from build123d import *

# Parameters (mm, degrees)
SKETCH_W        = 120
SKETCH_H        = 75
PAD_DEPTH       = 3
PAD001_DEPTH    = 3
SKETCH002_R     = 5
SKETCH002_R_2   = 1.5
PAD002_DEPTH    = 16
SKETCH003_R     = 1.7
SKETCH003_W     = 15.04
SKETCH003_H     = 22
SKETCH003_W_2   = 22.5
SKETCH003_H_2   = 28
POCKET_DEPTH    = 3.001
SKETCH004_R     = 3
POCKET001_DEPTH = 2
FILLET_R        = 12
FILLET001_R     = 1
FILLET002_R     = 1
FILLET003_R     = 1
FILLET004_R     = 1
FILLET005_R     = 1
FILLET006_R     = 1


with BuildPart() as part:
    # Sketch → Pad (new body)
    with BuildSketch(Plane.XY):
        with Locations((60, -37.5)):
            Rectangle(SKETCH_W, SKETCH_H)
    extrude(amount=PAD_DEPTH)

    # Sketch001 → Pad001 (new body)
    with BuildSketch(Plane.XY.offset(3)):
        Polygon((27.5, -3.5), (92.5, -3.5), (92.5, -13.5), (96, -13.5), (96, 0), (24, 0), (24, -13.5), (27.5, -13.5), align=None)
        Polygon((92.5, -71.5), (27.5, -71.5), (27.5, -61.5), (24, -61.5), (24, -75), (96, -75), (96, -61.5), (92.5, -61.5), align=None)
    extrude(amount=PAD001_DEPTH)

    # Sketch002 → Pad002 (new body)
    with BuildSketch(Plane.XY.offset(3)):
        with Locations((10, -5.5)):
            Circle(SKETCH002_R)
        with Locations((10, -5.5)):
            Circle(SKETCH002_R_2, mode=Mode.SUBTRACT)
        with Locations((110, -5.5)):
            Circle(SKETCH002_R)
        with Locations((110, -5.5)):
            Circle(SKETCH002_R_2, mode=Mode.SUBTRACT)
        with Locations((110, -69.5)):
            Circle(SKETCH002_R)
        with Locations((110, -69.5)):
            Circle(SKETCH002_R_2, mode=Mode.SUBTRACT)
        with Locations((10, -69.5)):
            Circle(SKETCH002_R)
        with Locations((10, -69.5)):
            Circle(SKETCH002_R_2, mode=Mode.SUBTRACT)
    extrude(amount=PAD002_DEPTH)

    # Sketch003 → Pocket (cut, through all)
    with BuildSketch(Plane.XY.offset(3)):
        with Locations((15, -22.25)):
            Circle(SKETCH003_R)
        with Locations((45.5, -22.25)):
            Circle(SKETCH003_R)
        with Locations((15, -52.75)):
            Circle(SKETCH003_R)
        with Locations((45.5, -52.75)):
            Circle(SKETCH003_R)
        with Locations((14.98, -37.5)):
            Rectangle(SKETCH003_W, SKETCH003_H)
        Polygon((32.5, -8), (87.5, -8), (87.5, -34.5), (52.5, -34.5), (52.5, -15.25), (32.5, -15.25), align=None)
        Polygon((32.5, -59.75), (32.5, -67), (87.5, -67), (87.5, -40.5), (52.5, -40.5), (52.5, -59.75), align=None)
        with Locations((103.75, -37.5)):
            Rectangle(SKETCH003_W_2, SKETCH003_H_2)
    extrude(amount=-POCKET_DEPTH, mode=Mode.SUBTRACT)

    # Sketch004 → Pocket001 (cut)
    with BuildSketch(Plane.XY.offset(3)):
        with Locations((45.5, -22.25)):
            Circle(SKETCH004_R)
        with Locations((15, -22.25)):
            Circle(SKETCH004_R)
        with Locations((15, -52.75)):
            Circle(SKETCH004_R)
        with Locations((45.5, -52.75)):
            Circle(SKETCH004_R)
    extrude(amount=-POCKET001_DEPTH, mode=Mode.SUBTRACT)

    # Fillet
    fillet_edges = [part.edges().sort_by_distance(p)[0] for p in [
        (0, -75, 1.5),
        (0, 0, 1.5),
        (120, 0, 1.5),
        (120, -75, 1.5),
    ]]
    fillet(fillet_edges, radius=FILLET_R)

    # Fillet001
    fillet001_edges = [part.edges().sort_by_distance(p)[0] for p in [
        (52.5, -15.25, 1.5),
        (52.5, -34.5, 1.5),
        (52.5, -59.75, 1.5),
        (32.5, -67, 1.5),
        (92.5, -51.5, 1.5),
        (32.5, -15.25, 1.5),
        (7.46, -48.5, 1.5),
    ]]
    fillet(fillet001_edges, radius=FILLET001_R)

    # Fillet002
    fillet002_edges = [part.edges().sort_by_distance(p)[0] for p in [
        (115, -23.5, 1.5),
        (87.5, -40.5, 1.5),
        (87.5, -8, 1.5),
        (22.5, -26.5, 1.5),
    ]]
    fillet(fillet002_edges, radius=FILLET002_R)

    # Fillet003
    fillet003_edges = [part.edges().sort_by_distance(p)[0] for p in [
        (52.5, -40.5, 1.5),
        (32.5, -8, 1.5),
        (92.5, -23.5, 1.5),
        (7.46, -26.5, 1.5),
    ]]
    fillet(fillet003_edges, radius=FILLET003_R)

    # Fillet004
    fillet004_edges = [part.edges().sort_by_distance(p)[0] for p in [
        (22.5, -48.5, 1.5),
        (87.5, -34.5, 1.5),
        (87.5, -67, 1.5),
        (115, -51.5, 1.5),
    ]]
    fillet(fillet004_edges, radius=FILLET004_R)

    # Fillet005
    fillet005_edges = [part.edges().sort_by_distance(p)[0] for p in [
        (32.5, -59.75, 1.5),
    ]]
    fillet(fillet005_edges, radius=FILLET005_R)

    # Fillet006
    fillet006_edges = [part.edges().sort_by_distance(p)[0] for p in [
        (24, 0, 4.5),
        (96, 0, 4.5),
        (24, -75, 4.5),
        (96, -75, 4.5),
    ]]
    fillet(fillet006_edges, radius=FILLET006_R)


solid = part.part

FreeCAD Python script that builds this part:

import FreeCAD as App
import Part
import Sketcher

V = App.Vector
Q = App.Units.Quantity


def edges_at(feature, points):
    """Names of the edges that pass closest to the given points."""
    edges = feature.Shape.Edges
    near = lambda p: min(range(len(edges)), key=lambda i: edges[i].distToShape(Part.Vertex(*p))[0])
    return sorted({f"Edge{near(p) + 1}" for p in points})


def add_polygon(sketch, points):
    """Adds a closed chain of lines whose ends are joined by coincident constraints."""
    first, n = sketch.GeometryCount, len(points)
    for a, b in zip(points, points[1:] + points[:1]):
        sketch.addGeometry(Part.LineSegment(App.Vector(*a, 0), App.Vector(*b, 0)), False)
    for i in range(n):
        sketch.addConstraint(Sketcher.Constraint("Coincident", first + i, 2, first + (i + 1) % n, 1))

doc = App.newDocument("Part")
body = doc.addObject("PartDesign::Body", "Body")

sketch1 = body.newObject("Sketcher::SketchObject", "Sketch")
sketch1.AttachmentSupport = (doc.getObject("XY_Plane"), [""])
sketch1.MapMode = "FlatFace"
add_polygon(sketch1, [(0, 0), (0, -75), (120, -75), (120, 0)])
sketch1.addConstraint([
    Sketcher.Constraint("Vertical", 0),
    Sketcher.Constraint("Horizontal", 1),
    Sketcher.Constraint("Vertical", 2),
    Sketcher.Constraint("Horizontal", 3),
    Sketcher.Constraint("Coincident", 3, 2, -1, 1),
    Sketcher.Constraint("DistanceX", 1, 1, 1, 2, Q("120 mm")),
    Sketcher.Constraint("DistanceY", 0, 2, 0, 1, Q("75 mm")),
])
pad1 = body.newObject("PartDesign::Pad", "Pad")
pad1.Profile = sketch1
pad1.Length = 3

sketch2 = body.newObject("Sketcher::SketchObject", "Sketch001")
sketch2.AttachmentSupport = (doc.getObject("XY_Plane"), [""])
sketch2.MapMode = "FlatFace"
sketch2.AttachmentOffset = App.Placement(V(0, 0, 3), App.Rotation())
add_polygon(sketch2, [(27.5, -3.5), (92.5, -3.5), (92.5, -13.5), (96, -13.5), (96, 0), (24, 0), (24, -13.5), (27.5, -13.5)])
add_polygon(sketch2, [(92.5, -71.5), (27.5, -71.5), (27.5, -61.5), (24, -61.5), (24, -75), (96, -75), (96, -61.5), (92.5, -61.5)])
sketch2.addConstraint([
    Sketcher.Constraint("Horizontal", 0),
    Sketcher.Constraint("Vertical", 1),
    Sketcher.Constraint("Horizontal", 2),
    Sketcher.Constraint("Vertical", 3),
    Sketcher.Constraint("Horizontal", 4),
    Sketcher.Constraint("Vertical", 5),
    Sketcher.Constraint("Horizontal", 6),
    Sketcher.Constraint("Vertical", 7),
    Sketcher.Constraint("Horizontal", 8),
    Sketcher.Constraint("Vertical", 9),
    Sketcher.Constraint("Horizontal", 10),
    Sketcher.Constraint("Vertical", 11),
    Sketcher.Constraint("Horizontal", 12),
    Sketcher.Constraint("Vertical", 13),
    Sketcher.Constraint("Horizontal", 14),
    Sketcher.Constraint("Vertical", 15),
    Sketcher.Constraint("PointOnObject", 3, 2, -1),
    Sketcher.Constraint("Horizontal", 2, 2, 5, 2),
    Sketcher.Constraint("Horizontal", 10, 2, 13, 2),
    Sketcher.Constraint("Vertical", 7, 2, 8, 2),
    Sketcher.Constraint("Vertical", 5, 2, 10, 2),
    Sketcher.Constraint("Vertical", 3, 2, 12, 2),
    Sketcher.Constraint("Vertical", 1, 2, 14, 2),
    Sketcher.Constraint("Equal", 2, 6),
    Sketcher.Constraint("Equal", 7, 9),
    Sketcher.Constraint("Equal", 5, 11),
    Sketcher.Constraint("DistanceX", 0, 1, 0, 2, Q("65 mm")),
    Sketcher.Constraint("DistanceX", 4, 2, 4, 1, Q("72 mm")),
    Sketcher.Constraint("DistanceY", 1, 2, 1, 1, Q("10 mm")),
    Sketcher.Constraint("DistanceY", 3, 1, 3, 2, Q("13.5 mm")),
    Sketcher.Constraint("DistanceX", -1, 1, 2, 2, Q("96 mm")),
    Sketcher.Constraint("DistanceY", 11, 2, -1, 1, Q("75 mm")),
])
pad2 = body.newObject("PartDesign::Pad", "Pad001")
pad2.Profile = sketch2
pad2.Length = 3

sketch3 = body.newObject("Sketcher::SketchObject", "Sketch002")
sketch3.AttachmentSupport = (doc.getObject("XY_Plane"), [""])
sketch3.MapMode = "FlatFace"
sketch3.AttachmentOffset = App.Placement(V(0, 0, 3), App.Rotation())
sketch3.addGeometry([
    Part.Circle(V(10, -5.5, 0), V(0, 0, 1), 5),
    Part.Circle(V(10, -5.5, 0), V(0, 0, 1), 1.5),
    Part.Circle(V(110, -5.5, 0), V(0, 0, 1), 5),
    Part.Circle(V(110, -5.5, 0), V(0, 0, 1), 1.5),
    Part.Circle(V(110, -69.5, 0), V(0, 0, 1), 5),
    Part.Circle(V(110, -69.5, 0), V(0, 0, 1), 1.5),
    Part.Circle(V(10, -69.5, 0), V(0, 0, 1), 5),
    Part.Circle(V(10, -69.5, 0), V(0, 0, 1), 1.5),
], False)
sketch3.addConstraint([
    Sketcher.Constraint("Coincident", 1, 3, 0, 3),
    Sketcher.Constraint("Coincident", 3, 3, 2, 3),
    Sketcher.Constraint("Coincident", 5, 3, 4, 3),
    Sketcher.Constraint("Coincident", 7, 3, 6, 3),
    Sketcher.Constraint("Equal", 0, 2),
    Sketcher.Constraint("Equal", 1, 3),
    Sketcher.Constraint("Equal", 2, 4),
    Sketcher.Constraint("Equal", 3, 5),
    Sketcher.Constraint("Equal", 4, 6),
    Sketcher.Constraint("Equal", 5, 7),
    Sketcher.Constraint("Horizontal", 1, 3, 2, 3),
    Sketcher.Constraint("Horizontal", 5, 3, 6, 3),
    Sketcher.Constraint("Vertical", 3, 3, 4, 3),
    Sketcher.Constraint("Vertical", 1, 3, 6, 3),
    Sketcher.Constraint("Diameter", 0, Q("10 mm")),
    Sketcher.Constraint("Diameter", 1, Q("3 mm")),
    Sketcher.Constraint("DistanceX", -1, 1, 0, 3, Q("10 mm")),
    Sketcher.Constraint("DistanceX", -1, 1, 2, 3, Q("110 mm")),
    Sketcher.Constraint("DistanceY", 4, 3, 2, 3, Q("64 mm")),
    Sketcher.Constraint("DistanceY", 0, 3, -1, 1, Q("5.5 mm")),
])
pad3 = body.newObject("PartDesign::Pad", "Pad002")
pad3.Profile = sketch3
pad3.Length = 16

sketch4 = body.newObject("Sketcher::SketchObject", "Sketch003")
sketch4.AttachmentSupport = (doc.getObject("XY_Plane"), [""])
sketch4.MapMode = "FlatFace"
sketch4.AttachmentOffset = App.Placement(V(0, 0, 3), App.Rotation())
sketch4.addGeometry(Part.Circle(V(15, -22.2, 0), V(0, 0, 1), 1.7), False)
sketch4.addGeometry(Part.Circle(V(45.5, -22.2, 0), V(0, 0, 1), 1.7), False)
sketch4.addGeometry(Part.Circle(V(15, -52.8, 0), V(0, 0, 1), 1.7), False)
sketch4.addGeometry(Part.Circle(V(45.5, -52.8, 0), V(0, 0, 1), 1.7), False)
add_polygon(sketch4, [(7.5, -26.5), (7.5, -48.5), (22.5, -48.5), (22.5, -26.5)])
add_polygon(sketch4, [(87.5, -8), (32.5, -8), (32.5, -15.2), (52.5, -15.2), (52.5, -34.5), (87.5, -34.5)])
add_polygon(sketch4, [(32.5, -59.8), (32.5, -67), (87.5, -67), (87.5, -40.5), (52.5, -40.5), (52.5, -59.8)])
add_polygon(sketch4, [(92.5, -23.5), (92.5, -51.5), (115, -51.5), (115, -23.5)])
sketch4.addConstraint([
    Sketcher.Constraint("Vertical", 4),
    Sketcher.Constraint("Horizontal", 5),
    Sketcher.Constraint("Vertical", 6),
    Sketcher.Constraint("Horizontal", 7),
    Sketcher.Constraint("Horizontal", 8),
    Sketcher.Constraint("Vertical", 9),
    Sketcher.Constraint("Horizontal", 10),
    Sketcher.Constraint("Vertical", 11),
    Sketcher.Constraint("Horizontal", 12),
    Sketcher.Constraint("Vertical", 13),
    Sketcher.Constraint("Vertical", 14),
    Sketcher.Constraint("Horizontal", 15),
    Sketcher.Constraint("Vertical", 16),
    Sketcher.Constraint("Horizontal", 17),
    Sketcher.Constraint("Vertical", 18),
    Sketcher.Constraint("Horizontal", 19),
    Sketcher.Constraint("Vertical", 20),
    Sketcher.Constraint("Horizontal", 21),
    Sketcher.Constraint("Vertical", 22),
    Sketcher.Constraint("Horizontal", 23),
    Sketcher.Constraint("Equal", 0, 1),
    Sketcher.Constraint("Equal", 1, 2),
    Sketcher.Constraint("Equal", 2, 3),
    Sketcher.Constraint("Horizontal", 0, 3, 1, 3),
    Sketcher.Constraint("Horizontal", 2, 3, 3, 3),
    Sketcher.Constraint("Vertical", 0, 3, 2, 3),
    Sketcher.Constraint("Vertical", 1, 3, 3, 3),
    Sketcher.Constraint("Vertical", 9, 2, 14, 2),
    Sketcher.Constraint("Vertical", 13, 2, 15, 2),
    Sketcher.Constraint("Vertical", 11, 2, 17, 2),
    Sketcher.Constraint("Equal", 9, 14),
    Sketcher.Constraint("Equal", 13, 16),
    Sketcher.Constraint("Diameter", 0, Q("3.4 mm")),
    Sketcher.Constraint("DistanceX", 8, 2, 8, 1, Q("55 mm")),
    Sketcher.Constraint("DistanceX", 10, 1, 10, 2, Q("20 mm")),
    Sketcher.Constraint("DistanceY", 4, 2, 4, 1, Q("22 mm")),
    Sketcher.Constraint("DistanceY", 20, 2, 20, 1, Q("28 mm")),
    Sketcher.Constraint("DistanceX", 21, 1, 21, 2, Q("22.5 mm")),
    Sketcher.Constraint("DistanceY", 13, 1, 13, 2, Q("26.5 mm")),
    Sketcher.Constraint("DistanceX", -1, 1, 0, 3, Q("15 mm")),
    Sketcher.Constraint("DistanceY", 8, 2, -1, 1, Q("8 mm")),
    Sketcher.Constraint("DistanceY", 14, 2, -1, 1, Q("67 mm")),
    Sketcher.Constraint("DistanceX", -1, 1, 21, 2, Q("115 mm")),
    Sketcher.Constraint("DistanceX", 5, 2, 3, 3, Q("23 mm")),
    Sketcher.Constraint("DistanceX", 8, 2, 1, 3, Q("13 mm")),
    Sketcher.Constraint("DistanceY", 1, 3, 9, 2, Q("7 mm")),
    Sketcher.Constraint("DistanceY", 11, 2, 6, 2, Q("8 mm")),
    Sketcher.Constraint("DistanceY", 18, 2, 3, 3, Q("7 mm")),
    Sketcher.Constraint("DistanceX", 16, 2, 20, 2, Q("5 mm")),
    Sketcher.Constraint("DistanceY", 20, 2, 16, 2, Q("11 mm")),
    Sketcher.Constraint("DistanceX", 5, 1, 5, 2, Q("15.04 mm")),
    Sketcher.Constraint("DistanceY", 9, 2, 9, 1, Q("7.25 mm")),
])
pocket1 = body.newObject("PartDesign::Pocket", "Pocket")
pocket1.Profile = sketch4
pocket1.Type = "ThroughAll"

sketch5 = body.newObject("Sketcher::SketchObject", "Sketch004")
sketch5.AttachmentSupport = (doc.getObject("XY_Plane"), [""])
sketch5.MapMode = "FlatFace"
sketch5.AttachmentOffset = App.Placement(V(0, 0, 3), App.Rotation())
sketch5.addGeometry([
    Part.Circle(V(45.5, -22.2, 0), V(0, 0, 1), 3),
    Part.Circle(V(15, -22.2, 0), V(0, 0, 1), 3),
    Part.Circle(V(15, -52.8, 0), V(0, 0, 1), 3),
    Part.Circle(V(45.5, -52.8, 0), V(0, 0, 1), 3),
], False)
sketch5.addConstraint([
    Sketcher.Constraint("Equal", 0, 1),
    Sketcher.Constraint("Equal", 1, 2),
    Sketcher.Constraint("Equal", 2, 3),
    Sketcher.Constraint("Horizontal", 0, 3, 1, 3),
    Sketcher.Constraint("Horizontal", 2, 3, 3, 3),
    Sketcher.Constraint("Vertical", 1, 3, 2, 3),
    Sketcher.Constraint("Vertical", 0, 3, 3, 3),
    Sketcher.Constraint("Diameter", 0, Q("6 mm")),
    Sketcher.Constraint("DistanceX", -1, 1, 1, 3, Q("15 mm")),
    Sketcher.Constraint("DistanceX", -1, 1, 0, 3, Q("45.5 mm")),
    Sketcher.Constraint("DistanceY", 2, 3, 1, 3, Q("30.5 mm")),
    Sketcher.Constraint("DistanceY", 0, 3, -1, 1, Q("22.25 mm")),
])
pocket2 = body.newObject("PartDesign::Pocket", "Pocket001")
pocket2.Profile = sketch5
pocket2.Length = 2
doc.recompute()

fillet = body.newObject("PartDesign::Fillet", "Fillet")
fillet.Base = (pocket2, edges_at(pocket2, [
    (0, -75, 1.5),
    (0, 0, 1.5),
    (120, 0, 1.5),
    (120, -75, 1.5),
]))
fillet.Radius = 12
doc.recompute()

fillet2 = body.newObject("PartDesign::Fillet", "Fillet001")
fillet2.Base = (fillet, edges_at(fillet, [
    (52.5, -15.25, 1.5),
    (52.5, -34.5, 1.5),
    (52.5, -59.75, 1.5),
    (32.5, -67, 1.5),
    (92.5, -51.5, 1.5),
    (32.5, -15.25, 1.5),
    (7.46, -48.5, 1.5),
]))
fillet2.Radius = 1
doc.recompute()

fillet3 = body.newObject("PartDesign::Fillet", "Fillet002")
fillet3.Base = (fillet2, edges_at(fillet2, [
    (115, -23.5, 1.5),
    (87.5, -40.5, 1.5),
    (87.5, -8, 1.5),
    (22.5, -26.5, 1.5),
]))
fillet3.Radius = 1
doc.recompute()

fillet4 = body.newObject("PartDesign::Fillet", "Fillet003")
fillet4.Base = (fillet3, edges_at(fillet3, [
    (52.5, -40.5, 1.5),
    (32.5, -8, 1.5),
    (92.5, -23.5, 1.5),
    (7.46, -26.5, 1.5),
]))
fillet4.Radius = 1
doc.recompute()

fillet5 = body.newObject("PartDesign::Fillet", "Fillet004")
fillet5.Base = (fillet4, edges_at(fillet4, [
    (22.5, -48.5, 1.5),
    (87.5, -34.5, 1.5),
    (87.5, -67, 1.5),
    (115, -51.5, 1.5),
]))
fillet5.Radius = 1
doc.recompute()

fillet6 = body.newObject("PartDesign::Fillet", "Fillet005")
fillet6.Base = (fillet5, edges_at(fillet5, [(32.5, -59.75, 1.5)]))
fillet6.Radius = 1
doc.recompute()

fillet7 = body.newObject("PartDesign::Fillet", "Fillet006")
fillet7.Base = (fillet6, edges_at(fillet6, [
    (24, 0, 4.5),
    (96, 0, 4.5),
    (24, -75, 4.5),
    (96, -75, 4.5),
]))
fillet7.Radius = 1

doc.recompute()
